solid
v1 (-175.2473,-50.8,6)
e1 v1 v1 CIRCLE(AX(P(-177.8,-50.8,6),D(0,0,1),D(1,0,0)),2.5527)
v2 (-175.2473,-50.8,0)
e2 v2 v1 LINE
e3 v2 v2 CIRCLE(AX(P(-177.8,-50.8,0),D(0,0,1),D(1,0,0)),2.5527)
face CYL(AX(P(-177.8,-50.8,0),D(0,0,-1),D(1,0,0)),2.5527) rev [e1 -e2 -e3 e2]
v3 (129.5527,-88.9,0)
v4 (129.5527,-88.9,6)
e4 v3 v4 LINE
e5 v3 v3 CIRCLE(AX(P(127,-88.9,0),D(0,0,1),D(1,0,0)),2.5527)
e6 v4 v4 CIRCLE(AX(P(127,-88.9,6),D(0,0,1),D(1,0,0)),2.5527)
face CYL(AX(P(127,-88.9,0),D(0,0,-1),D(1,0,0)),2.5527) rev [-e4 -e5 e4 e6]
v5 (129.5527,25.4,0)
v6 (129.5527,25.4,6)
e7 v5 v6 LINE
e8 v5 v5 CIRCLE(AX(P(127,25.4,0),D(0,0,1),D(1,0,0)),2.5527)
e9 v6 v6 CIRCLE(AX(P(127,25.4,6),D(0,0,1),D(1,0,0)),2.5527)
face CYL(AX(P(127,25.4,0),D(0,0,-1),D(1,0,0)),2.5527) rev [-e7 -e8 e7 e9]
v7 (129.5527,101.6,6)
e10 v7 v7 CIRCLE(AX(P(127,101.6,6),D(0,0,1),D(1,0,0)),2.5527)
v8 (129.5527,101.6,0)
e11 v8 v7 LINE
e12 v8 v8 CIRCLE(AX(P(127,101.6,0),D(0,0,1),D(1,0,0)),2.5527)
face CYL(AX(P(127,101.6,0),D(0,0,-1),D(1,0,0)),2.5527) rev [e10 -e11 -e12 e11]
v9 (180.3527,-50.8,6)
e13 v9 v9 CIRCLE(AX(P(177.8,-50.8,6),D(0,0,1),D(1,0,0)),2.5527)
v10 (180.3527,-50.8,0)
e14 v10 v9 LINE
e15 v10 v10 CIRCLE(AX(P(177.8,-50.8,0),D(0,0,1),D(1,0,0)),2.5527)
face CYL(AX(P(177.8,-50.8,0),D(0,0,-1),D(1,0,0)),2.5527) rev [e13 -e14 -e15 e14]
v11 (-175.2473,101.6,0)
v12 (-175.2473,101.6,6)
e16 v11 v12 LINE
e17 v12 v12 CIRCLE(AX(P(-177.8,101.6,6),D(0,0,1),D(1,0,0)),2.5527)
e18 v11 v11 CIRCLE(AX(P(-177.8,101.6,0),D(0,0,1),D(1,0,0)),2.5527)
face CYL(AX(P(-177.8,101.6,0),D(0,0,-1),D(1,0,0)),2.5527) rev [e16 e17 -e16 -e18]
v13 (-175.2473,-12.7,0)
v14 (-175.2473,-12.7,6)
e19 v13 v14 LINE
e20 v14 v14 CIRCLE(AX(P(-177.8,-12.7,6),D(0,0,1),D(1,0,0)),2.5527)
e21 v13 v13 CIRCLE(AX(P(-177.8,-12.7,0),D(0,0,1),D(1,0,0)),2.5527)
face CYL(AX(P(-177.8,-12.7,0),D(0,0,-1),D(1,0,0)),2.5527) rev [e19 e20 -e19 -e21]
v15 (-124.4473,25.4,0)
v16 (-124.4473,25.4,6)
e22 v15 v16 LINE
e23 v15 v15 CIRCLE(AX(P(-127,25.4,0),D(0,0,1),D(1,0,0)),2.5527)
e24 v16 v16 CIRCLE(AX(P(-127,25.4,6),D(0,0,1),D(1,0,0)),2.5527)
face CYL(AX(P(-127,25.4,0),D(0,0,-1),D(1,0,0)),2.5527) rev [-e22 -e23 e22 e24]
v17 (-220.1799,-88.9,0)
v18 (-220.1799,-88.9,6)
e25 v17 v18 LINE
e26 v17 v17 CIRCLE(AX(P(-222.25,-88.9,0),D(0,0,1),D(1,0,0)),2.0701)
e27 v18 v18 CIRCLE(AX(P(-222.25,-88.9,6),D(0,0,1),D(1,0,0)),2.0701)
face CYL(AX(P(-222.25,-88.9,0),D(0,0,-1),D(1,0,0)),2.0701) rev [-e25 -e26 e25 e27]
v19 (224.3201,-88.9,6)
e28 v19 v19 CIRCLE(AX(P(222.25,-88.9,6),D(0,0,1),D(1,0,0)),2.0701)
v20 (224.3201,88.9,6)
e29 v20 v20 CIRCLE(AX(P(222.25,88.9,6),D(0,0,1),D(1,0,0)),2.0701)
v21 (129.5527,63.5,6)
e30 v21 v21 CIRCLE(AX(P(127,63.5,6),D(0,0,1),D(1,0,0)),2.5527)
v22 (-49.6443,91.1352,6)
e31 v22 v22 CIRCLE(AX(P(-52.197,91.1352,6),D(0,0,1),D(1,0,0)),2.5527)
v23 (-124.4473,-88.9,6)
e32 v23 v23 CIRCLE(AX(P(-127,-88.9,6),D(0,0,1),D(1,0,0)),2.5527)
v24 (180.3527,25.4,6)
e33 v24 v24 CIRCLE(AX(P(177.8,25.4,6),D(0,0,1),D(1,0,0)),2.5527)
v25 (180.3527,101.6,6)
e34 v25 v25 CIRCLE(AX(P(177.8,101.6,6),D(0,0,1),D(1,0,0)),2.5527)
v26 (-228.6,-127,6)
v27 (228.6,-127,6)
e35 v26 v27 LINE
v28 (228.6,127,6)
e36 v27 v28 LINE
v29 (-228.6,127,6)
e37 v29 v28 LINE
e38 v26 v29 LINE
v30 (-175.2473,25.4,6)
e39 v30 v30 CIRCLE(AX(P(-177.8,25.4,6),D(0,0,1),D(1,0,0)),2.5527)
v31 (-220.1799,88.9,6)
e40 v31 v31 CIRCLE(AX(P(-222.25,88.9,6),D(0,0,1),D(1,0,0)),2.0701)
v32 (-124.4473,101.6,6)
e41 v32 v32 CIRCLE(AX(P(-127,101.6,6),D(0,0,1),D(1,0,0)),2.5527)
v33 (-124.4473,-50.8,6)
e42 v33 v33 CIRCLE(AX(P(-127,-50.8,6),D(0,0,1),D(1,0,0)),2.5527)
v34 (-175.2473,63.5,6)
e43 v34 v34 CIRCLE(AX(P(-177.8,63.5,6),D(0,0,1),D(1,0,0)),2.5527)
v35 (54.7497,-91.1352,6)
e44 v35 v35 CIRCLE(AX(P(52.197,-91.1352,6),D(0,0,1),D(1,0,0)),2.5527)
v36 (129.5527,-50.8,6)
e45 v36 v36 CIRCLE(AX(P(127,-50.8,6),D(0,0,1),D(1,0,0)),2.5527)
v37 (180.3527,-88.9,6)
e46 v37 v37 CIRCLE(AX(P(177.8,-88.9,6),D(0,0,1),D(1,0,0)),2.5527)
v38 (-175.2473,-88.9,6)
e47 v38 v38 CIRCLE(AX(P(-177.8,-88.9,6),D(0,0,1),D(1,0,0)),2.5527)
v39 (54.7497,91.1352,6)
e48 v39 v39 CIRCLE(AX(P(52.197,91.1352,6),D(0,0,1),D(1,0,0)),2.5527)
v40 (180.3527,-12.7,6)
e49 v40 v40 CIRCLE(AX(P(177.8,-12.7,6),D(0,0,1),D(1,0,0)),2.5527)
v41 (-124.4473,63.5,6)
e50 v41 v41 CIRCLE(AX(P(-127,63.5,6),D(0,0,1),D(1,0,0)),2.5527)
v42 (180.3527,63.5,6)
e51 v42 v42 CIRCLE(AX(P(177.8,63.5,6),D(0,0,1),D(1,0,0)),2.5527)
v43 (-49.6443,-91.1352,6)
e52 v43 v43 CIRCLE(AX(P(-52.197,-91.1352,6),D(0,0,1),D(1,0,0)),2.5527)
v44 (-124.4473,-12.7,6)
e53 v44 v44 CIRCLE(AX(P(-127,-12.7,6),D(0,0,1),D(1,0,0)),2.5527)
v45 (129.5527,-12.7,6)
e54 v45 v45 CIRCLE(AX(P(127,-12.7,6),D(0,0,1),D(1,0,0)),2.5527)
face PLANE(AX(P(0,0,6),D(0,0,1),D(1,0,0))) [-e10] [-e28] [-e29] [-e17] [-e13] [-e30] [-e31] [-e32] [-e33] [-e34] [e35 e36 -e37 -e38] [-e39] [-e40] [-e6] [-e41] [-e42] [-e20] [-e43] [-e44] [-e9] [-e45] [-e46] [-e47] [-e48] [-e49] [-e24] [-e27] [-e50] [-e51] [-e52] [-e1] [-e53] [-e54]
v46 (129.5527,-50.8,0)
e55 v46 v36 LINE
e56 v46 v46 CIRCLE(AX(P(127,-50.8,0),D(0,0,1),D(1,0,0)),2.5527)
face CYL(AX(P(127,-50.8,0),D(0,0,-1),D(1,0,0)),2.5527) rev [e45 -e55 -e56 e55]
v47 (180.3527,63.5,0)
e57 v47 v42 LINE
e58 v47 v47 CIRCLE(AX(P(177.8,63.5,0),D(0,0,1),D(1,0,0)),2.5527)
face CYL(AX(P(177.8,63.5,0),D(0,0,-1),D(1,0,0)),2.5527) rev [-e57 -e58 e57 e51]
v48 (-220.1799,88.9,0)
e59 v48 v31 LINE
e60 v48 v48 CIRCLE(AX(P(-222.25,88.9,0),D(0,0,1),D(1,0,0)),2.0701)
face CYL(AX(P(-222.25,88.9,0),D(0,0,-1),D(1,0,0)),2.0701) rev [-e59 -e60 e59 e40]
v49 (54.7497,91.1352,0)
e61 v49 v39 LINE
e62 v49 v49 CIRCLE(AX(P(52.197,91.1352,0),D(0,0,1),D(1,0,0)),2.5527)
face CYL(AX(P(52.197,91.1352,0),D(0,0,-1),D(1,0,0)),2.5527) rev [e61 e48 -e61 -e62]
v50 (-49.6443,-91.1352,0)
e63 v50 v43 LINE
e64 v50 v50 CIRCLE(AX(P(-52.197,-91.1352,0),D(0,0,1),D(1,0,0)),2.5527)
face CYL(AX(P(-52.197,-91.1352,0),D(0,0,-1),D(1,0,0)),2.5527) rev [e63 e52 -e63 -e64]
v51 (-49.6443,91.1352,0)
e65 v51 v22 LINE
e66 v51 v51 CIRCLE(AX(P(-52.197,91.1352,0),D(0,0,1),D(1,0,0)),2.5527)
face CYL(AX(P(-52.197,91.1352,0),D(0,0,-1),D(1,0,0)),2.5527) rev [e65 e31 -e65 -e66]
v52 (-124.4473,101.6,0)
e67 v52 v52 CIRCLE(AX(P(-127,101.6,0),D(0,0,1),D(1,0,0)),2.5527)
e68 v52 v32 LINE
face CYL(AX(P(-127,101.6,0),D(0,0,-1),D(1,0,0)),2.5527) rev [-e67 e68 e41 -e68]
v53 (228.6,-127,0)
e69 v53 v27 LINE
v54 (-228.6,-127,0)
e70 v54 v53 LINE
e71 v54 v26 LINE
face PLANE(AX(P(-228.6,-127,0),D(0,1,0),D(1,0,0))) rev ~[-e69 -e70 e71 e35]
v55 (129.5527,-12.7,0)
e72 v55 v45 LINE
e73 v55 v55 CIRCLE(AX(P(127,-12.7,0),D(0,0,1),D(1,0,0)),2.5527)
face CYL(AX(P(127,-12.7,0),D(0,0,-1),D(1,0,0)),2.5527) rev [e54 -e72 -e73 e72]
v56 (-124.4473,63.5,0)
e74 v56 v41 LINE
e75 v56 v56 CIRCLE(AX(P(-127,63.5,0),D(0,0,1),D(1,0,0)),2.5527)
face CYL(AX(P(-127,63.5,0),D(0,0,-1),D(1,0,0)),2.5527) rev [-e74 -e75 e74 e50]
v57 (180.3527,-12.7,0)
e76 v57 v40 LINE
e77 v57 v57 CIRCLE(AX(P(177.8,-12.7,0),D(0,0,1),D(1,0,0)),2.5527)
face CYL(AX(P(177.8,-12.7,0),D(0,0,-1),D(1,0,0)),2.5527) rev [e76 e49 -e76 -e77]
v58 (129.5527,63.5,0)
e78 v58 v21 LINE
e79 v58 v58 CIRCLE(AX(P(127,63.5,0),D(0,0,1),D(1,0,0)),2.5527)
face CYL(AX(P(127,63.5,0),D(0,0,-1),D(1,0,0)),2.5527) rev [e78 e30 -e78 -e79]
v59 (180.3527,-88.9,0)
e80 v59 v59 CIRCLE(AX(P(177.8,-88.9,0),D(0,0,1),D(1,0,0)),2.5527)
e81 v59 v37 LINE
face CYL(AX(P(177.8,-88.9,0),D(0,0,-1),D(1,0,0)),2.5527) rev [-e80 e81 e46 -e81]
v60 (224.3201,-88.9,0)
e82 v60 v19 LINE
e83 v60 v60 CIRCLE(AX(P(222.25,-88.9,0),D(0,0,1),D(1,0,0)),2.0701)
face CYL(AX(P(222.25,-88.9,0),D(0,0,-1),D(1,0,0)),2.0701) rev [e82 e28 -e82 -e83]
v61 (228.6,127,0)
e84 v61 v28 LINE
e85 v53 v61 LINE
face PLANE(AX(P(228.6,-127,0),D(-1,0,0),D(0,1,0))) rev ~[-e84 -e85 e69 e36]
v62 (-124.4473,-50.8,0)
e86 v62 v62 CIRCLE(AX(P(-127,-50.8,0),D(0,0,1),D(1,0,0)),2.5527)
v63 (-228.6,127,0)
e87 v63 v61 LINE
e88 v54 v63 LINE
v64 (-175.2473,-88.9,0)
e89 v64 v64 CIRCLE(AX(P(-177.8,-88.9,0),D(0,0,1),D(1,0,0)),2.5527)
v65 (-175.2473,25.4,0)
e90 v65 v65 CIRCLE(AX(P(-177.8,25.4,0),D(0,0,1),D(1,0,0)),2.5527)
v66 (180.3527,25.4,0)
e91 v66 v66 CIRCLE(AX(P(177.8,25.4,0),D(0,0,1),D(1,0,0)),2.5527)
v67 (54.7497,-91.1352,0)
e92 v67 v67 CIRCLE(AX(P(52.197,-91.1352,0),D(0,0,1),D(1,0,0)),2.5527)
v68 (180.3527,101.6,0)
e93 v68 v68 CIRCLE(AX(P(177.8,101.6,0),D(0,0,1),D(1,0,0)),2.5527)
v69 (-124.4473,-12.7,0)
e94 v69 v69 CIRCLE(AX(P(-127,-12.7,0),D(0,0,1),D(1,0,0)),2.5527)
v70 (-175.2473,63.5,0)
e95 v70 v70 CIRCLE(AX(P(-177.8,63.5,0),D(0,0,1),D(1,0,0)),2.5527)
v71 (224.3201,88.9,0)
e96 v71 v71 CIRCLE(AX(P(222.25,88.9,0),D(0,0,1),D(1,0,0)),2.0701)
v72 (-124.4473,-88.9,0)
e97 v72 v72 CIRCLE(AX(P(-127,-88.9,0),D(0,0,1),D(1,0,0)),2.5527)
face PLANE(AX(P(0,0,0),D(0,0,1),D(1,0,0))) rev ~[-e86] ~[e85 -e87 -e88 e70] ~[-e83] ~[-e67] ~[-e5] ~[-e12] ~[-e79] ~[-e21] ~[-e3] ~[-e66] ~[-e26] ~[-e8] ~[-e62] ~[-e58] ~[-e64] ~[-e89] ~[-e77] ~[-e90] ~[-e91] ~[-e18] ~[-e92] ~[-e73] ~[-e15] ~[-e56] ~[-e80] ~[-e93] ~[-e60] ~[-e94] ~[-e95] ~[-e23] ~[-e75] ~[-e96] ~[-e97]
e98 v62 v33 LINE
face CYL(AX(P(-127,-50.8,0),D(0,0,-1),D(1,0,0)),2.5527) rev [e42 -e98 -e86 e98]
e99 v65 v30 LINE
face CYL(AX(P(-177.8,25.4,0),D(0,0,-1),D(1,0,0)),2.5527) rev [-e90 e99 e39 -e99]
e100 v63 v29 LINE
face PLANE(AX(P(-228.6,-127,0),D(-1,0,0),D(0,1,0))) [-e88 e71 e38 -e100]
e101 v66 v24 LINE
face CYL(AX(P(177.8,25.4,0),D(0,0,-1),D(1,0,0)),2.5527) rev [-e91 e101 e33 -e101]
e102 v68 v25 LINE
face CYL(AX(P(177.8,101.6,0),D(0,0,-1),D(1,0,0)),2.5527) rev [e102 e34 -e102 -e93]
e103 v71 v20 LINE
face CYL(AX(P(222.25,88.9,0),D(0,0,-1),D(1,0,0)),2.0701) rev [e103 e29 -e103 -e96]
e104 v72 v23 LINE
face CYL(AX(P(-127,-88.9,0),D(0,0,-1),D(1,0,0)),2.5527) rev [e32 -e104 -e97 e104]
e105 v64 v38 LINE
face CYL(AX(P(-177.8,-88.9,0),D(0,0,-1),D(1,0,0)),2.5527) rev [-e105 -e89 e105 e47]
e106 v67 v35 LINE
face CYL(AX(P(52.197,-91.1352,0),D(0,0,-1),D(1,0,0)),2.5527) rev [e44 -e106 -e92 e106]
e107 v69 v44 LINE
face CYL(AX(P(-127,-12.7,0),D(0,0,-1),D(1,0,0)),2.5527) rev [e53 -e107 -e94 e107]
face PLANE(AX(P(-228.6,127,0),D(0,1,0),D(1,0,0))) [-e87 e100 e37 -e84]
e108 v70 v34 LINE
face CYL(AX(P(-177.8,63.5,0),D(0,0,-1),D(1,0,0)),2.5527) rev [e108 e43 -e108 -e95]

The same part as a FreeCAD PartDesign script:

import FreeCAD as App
import Part
import Sketcher
from FreeCAD import Vector
Q = App.Units.Quantity

doc = App.newDocument("Part")
params = doc.addObject("Spreadsheet::Sheet", "Params")
for row, (alias, value) in enumerate([
    ("sketch1_width", "18 in"),
    ("sketch1_height", "10 in"),
    ("sketch1_diameter", "0.163 in"),
    ("sketch1_diameter2", "0.201 in"),
    ("pad1_length", "6 mm"),
], start=1):
    params.set(f"A{row}", alias)
    params.set(f"B{row}", "=" + value)
    params.setAlias(f"B{row}", alias)

body = doc.addObject("PartDesign::Body", "Body")

sketch1 = body.newObject("Sketcher::SketchObject", "Sketch")
sketch1.AttachmentSupport = (doc.getObject("XY_Plane"), [""])
sketch1.MapMode = "FlatFace"
sketch1.addGeometry([
    Part.LineSegment(Vector(-228.6, 127, 0), Vector(-228.6, -127, 0)),
    Part.LineSegment(Vector(-228.6, -127, 0), Vector(228.6, -127, 0)),
    Part.LineSegment(Vector(228.6, -127, 0), Vector(228.6, 127, 0)),
    Part.LineSegment(Vector(228.6, 127, 0), Vector(-228.6, 127, 0)),
    Part.Circle(Vector(-222.2, -88.9, 0), Vector(0, 0, 1), 2.1),
    Part.Circle(Vector(-177.8, -88.9, 0), Vector(0, 0, 1), 2.6),
    Part.Circle(Vector(-127, -88.9, 0), Vector(0, 0, 1), 2.6),
    Part.Circle(Vector(-177.8, -50.8, 0), Vector(0, 0, 1), 2.6),
    Part.Circle(Vector(-127, -50.8, 0), Vector(0, 0, 1), 2.6),
    Part.Circle(Vector(-52.2, -91.1, 0), Vector(0, 0, 1), 2.6),
    Part.Circle(Vector(-177.8, -12.7, 0), Vector(0, 0, 1), 2.6),
    Part.Circle(Vector(-127, -12.7, 0), Vector(0, 0, 1), 2.6),
    Part.Circle(Vector(52.2, -91.1, 0), Vector(0, 0, 1), 2.6),
    Part.Circle(Vector(127, -88.9, 0), Vector(0, 0, 1), 2.6),
    Part.Circle(Vector(177.8, -88.9, 0), Vector(0, 0, 1), 2.6),
    Part.Circle(Vector(222.2, -88.9, 0), Vector(0, 0, 1), 2.1),
    Part.Circle(Vector(127, -50.8, 0), Vector(0, 0, 1), 2.6),
    Part.Circle(Vector(177.8, -50.8, 0), Vector(0, 0, 1), 2.6),
    Part.Circle(Vector(127, -12.7, 0), Vector(0, 0, 1), 2.6),
    Part.Circle(Vector(177.8, -12.7, 0), Vector(0, 0, 1), 2.6),
    Part.Circle(Vector(-177.8, 25.4, 0), Vector(0, 0, 1), 2.6),
    Part.Circle(Vector(-127, 25.4, 0), Vector(0, 0, 1), 2.6),
    Part.Circle(Vector(-177.8, 63.5, 0), Vector(0, 0, 1), 2.6),
    Part.Circle(Vector(-127, 63.5, 0), Vector(0, 0, 1), 2.6),
    Part.Circle(Vector(-222.2, 88.9, 0), Vector(0, 0, 1), 2.1),
    Part.Circle(Vector(-177.8, 101.6, 0), Vector(0, 0, 1), 2.6),
    Part.Circle(Vector(-127, 101.6, 0), Vector(0, 0, 1), 2.6),
    Part.Circle(Vector(-52.2, 91.1, 0), Vector(0, 0, 1), 2.6),
    Part.Circle(Vector(127, 25.4, 0), Vector(0, 0, 1), 2.6),
    Part.Circle(Vector(177.8, 25.4, 0), Vector(0, 0, 1), 2.6),
    Part.Circle(Vector(52.2, 91.1, 0), Vector(0, 0, 1), 2.6),
    Part.Circle(Vector(127, 63.5, 0), Vector(0, 0, 1), 2.6),
    Part.Circle(Vector(177.8, 63.5, 0), Vector(0, 0, 1), 2.6),
    Part.Circle(Vector(127, 101.6, 0), Vector(0, 0, 1), 2.6),
    Part.Circle(Vector(222.2, 88.9, 0), Vector(0, 0, 1), 2.1),
    Part.Circle(Vector(177.8, 101.6, 0), Vector(0, 0, 1), 2.6),
], False)
sketch1.addConstraint([
    Sketcher.Constraint("Coincident", 0, 2, 1, 1),
    Sketcher.Constraint("Coincident", 1, 2, 2, 1),
    Sketcher.Constraint("Coincident", 2, 2, 3, 1),
    Sketcher.Constraint("Coincident", 3, 2, 0, 1),
    Sketcher.Constraint("Vertical", 0),
    Sketcher.Constraint("Horizontal", 1),
    Sketcher.Constraint("Vertical", 2),
    Sketcher.Constraint("Horizontal", 3),
    Sketcher.Constraint("Equal", 5, 6),
    Sketcher.Constraint("Equal", 6, 7),
    Sketcher.Constraint("Equal", 7, 8),
    Sketcher.Constraint("Equal", 8, 9),
    Sketcher.Constraint("Equal", 9, 10),
    Sketcher.Constraint("Equal", 10, 11),
    Sketcher.Constraint("Equal", 11, 12),
    Sketcher.Constraint("Equal", 12, 13),
    Sketcher.Constraint("Equal", 13, 14),
    Sketcher.Constraint("Equal", 4, 15),
    Sketcher.Constraint("Equal", 14, 16),
    Sketcher.Constraint("Equal", 16, 17),
    Sketcher.Constraint("Equal", 17, 18),
    Sketcher.Constraint("Equal", 18, 19),
    Sketcher.Constraint("Equal", 19, 20),
    Sketcher.Constraint("Equal", 20, 21),
    Sketcher.Constraint("Equal", 21, 22),
    Sketcher.Constraint("Equal", 22, 23),
    Sketcher.Constraint("Equal", 15, 24),
    Sketcher.Constraint("Equal", 23, 25),
    Sketcher.Constraint("Equal", 25, 26),
    Sketcher.Constraint("Equal", 26, 27),
    Sketcher.Constraint("Equal", 27, 28),
    Sketcher.Constraint("Equal", 28, 29),
    Sketcher.Constraint("Equal", 29, 30),
    Sketcher.Constraint("Equal", 30, 31),
    Sketcher.Constraint("Equal", 31, 32),
    Sketcher.Constraint("Equal", 32, 33),
    Sketcher.Constraint("Equal", 24, 34),
    Sketcher.Constraint("Equal", 33, 35),
    Sketcher.Constraint("Symmetric", 15, 3, 24, 3, -1, 1),
    Sketcher.Constraint("Symmetric", 12, 3, 27, 3, -1, 1),
    Sketcher.Constraint("Symmetric", 9, 3, 30, 3, -1, 1),
    Sketcher.Constraint("Symmetric", 4, 3, 34, 3, -1, 1),
    Sketcher.Constraint("Symmetric", 0, 2, 2, 2, -1, 1),
    Sketcher.Constraint("Symmetric", 9, 3, 12, 3, -2),
    Sketcher.Constraint("Symmetric", 6, 3, 13, 3, -2),
    Sketcher.Constraint("Symmetric", 5, 3, 14, 3, -2),
    Sketcher.Constraint("Symmetric", 4, 3, 15, 3, -2),
    Sketcher.Constraint("Symmetric", 8, 3, 16, 3, -2),
    Sketcher.Constraint("Symmetric", 7, 3, 17, 3, -2),
    Sketcher.Constraint("Symmetric", 11, 3, 18, 3, -2),
    Sketcher.Constraint("Symmetric", 10, 3, 19, 3, -2),
    Sketcher.Constraint("Symmetric", 21, 3, 28, 3, -2),
    Sketcher.Constraint("Symmetric", 20, 3, 29, 3, -2),
    Sketcher.Constraint("Symmetric", 23, 3, 31, 3, -2),
    Sketcher.Constraint("Symmetric", 22, 3, 32, 3, -2),
    Sketcher.Constraint("Symmetric", 26, 3, 33, 3, -2),
    Sketcher.Constraint("Symmetric", 25, 3, 35, 3, -2),
    Sketcher.Constraint("Horizontal", 4, 3, 5, 3),
    Sketcher.Constraint("Horizontal", 5, 3, 6, 3),
    Sketcher.Constraint("Horizontal", 7, 3, 8, 3),
    Sketcher.Constraint("Horizontal", 10, 3, 11, 3),
    Sketcher.Constraint("Horizontal", 20, 3, 21, 3),
    Sketcher.Constraint("Horizontal", 22, 3, 23, 3),
    Sketcher.Constraint("Horizontal", 25, 3, 26, 3),
    Sketcher.Constraint("Vertical", 5, 3, 7, 3),
    Sketcher.Constraint("Vertical", 6, 3, 8, 3),
    Sketcher.Constraint("Vertical", 7, 3, 10, 3),
    Sketcher.Constraint("Vertical", 8, 3, 11, 3),
    Sketcher.Constraint("Vertical", 10, 3, 20, 3),
    Sketcher.Constraint("Vertical", 11, 3, 21, 3),
    Sketcher.Constraint("Vertical", 20, 3, 22, 3),
    Sketcher.Constraint("Vertical", 21, 3, 23, 3),
    Sketcher.Constraint("Vertical", 22, 3, 25, 3),
    Sketcher.Constraint("Vertical", 23, 3, 26, 3),
    Sketcher.Constraint("DistanceX", 1, 1, 1, 2, Q("18 in")),
    Sketcher.Constraint("DistanceY", 0, 2, 0, 1, Q("10 in")),
    Sketcher.Constraint("Diameter", 4, Q("0.163 in")),
    Sketcher.Constraint("Diameter", 5, Q("0.201 in")),
    Sketcher.Constraint("DistanceX", 5, 3, -1, 1, Q("7 in")),
    Sketcher.Constraint("DistanceX", 6, 3, -1, 1, Q("5 in")),
    Sketcher.Constraint("DistanceY", 7, 3, -1, 1, Q("2 in")),
    Sketcher.Constraint("DistanceY", -1, 1, 20, 3, Q("1 in")),
    Sketcher.Constraint("DistanceY", -1, 1, 25, 3, Q("4 in")),
    Sketcher.Constraint("DistanceY", 5, 3, 10, 3, Q("3 in")),
    Sketcher.Constraint("DistanceY", 10, 3, 22, 3, Q("3 in")),
    Sketcher.Constraint("DistanceY", 22, 3, 24, 3, Q("1 in")),
    Sketcher.Constraint("DistanceX", 4, 3, -1, 1, Q("8.75 in")),
    Sketcher.Constraint("DistanceX", 9, 3, 12, 3, Q("4.11 in")),
    Sketcher.Constraint("DistanceY", 9, 3, -1, 1, Q("3.588 in")),
])
sketch1.setExpression("Constraints[74]", "Params.sketch1_width")
sketch1.setExpression("Constraints[75]", "Params.sketch1_height")
sketch1.setExpression("Constraints[76]", "Params.sketch1_diameter")
sketch1.setExpression("Constraints[77]", "Params.sketch1_diameter2")
pad1 = body.newObject("PartDesign::Pad", "Pad")
pad1.Profile = sketch1
pad1.setExpression("Length", "Params.pad1_length")

doc.recompute()
